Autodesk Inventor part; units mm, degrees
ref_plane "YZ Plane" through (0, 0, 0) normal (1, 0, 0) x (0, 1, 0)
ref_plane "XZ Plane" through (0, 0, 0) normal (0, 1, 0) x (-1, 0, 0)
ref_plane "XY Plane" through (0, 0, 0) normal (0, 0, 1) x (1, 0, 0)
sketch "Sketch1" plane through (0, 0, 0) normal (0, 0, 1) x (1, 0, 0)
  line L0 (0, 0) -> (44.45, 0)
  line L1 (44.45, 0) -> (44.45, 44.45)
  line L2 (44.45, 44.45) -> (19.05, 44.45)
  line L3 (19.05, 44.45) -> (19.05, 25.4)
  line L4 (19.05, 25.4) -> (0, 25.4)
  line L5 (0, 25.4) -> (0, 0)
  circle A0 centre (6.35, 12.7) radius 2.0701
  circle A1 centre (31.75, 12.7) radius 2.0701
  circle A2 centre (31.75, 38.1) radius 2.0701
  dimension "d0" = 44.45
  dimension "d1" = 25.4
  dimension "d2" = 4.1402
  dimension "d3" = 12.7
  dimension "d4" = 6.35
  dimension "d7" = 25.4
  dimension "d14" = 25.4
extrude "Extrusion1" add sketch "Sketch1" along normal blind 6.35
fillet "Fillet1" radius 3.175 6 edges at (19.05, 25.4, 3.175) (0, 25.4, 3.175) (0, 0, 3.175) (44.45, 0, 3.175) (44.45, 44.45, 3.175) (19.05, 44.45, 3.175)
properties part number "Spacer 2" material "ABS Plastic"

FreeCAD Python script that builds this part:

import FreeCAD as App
import Part
import Sketcher
Q = App.Units.Quantity


def edges_at(feature, points):
    """Names of the edges that pass closest to the given points."""
    edges = feature.Shape.Edges
    near = lambda p: min(range(len(edges)), key=lambda i: edges[i].distToShape(Part.Vertex(*p))[0])
    return sorted({f"Edge{near(p) + 1}" for p in points})

doc = App.newDocument("Part")
body = doc.addObject("PartDesign::Body", "Body")

# Sketch on XY plane
sketch1 = doc.addObject("Sketcher::SketchObject", "Sketch")
body.addObject(sketch1)
sketch1.AttachmentSupport = (doc.XY_Plane, [""])
sketch1.MapMode = "FlatFace"
sketch1.addGeometry(Part.LineSegment(App.Vector(0, 25.4, 0), App.Vector(0, 0, 0)), False)
sketch1.addGeometry(Part.LineSegment(App.Vector(0, 0, 0), App.Vector(44.45, 0, 0)), False)
sketch1.addGeometry(Part.LineSegment(App.Vector(44.45, 0, 0), App.Vector(44.45, 44.45, 0)), False)
sketch1.addGeometry(Part.LineSegment(App.Vector(44.45, 44.45, 0), App.Vector(19.05, 44.45, 0)), False)
sketch1.addGeometry(Part.LineSegment(App.Vector(19.05, 44.45, 0), App.Vector(19.05, 25.4, 0)), False)
sketch1.addGeometry(Part.LineSegment(App.Vector(19.05, 25.4, 0), App.Vector(0, 25.4, 0)), False)
sketch1.addGeometry(Part.Circle(App.Vector(6.35, 12.7, 0), App.Vector(0, 0, 1), 2.0701), False)
sketch1.addGeometry(Part.Circle(App.Vector(31.75, 12.7, 0), App.Vector(0, 0, 1), 2.0701), False)
sketch1.addGeometry(Part.Circle(App.Vector(31.75, 38.1, 0), App.Vector(0, 0, 1), 2.0701), False)
sketch1.addConstraint(Sketcher.Constraint("Coincident", 0, 2, 1, 1))
sketch1.addConstraint(Sketcher.Constraint("Coincident", 1, 2, 2, 1))
sketch1.addConstraint(Sketcher.Constraint("Coincident", 2, 2, 3, 1))
sketch1.addConstraint(Sketcher.Constraint("Coincident", 3, 2, 4, 1))
sketch1.addConstraint(Sketcher.Constraint("Coincident", 4, 2, 5, 1))
sketch1.addConstraint(Sketcher.Constraint("Coincident", 5, 2, 0, 1))
sketch1.addConstraint(Sketcher.Constraint("Vertical", 0))
sketch1.addConstraint(Sketcher.Constraint("Horizontal", 1))
sketch1.addConstraint(Sketcher.Constraint("Vertical", 2))
sketch1.addConstraint(Sketcher.Constraint("Horizontal", 3))
sketch1.addConstraint(Sketcher.Constraint("Vertical", 4))
sketch1.addConstraint(Sketcher.Constraint("Horizontal", 5))
sketch1.addConstraint(Sketcher.Constraint("Coincident", 0, 2, -1, 1))
sketch1.addConstraint(Sketcher.Constraint("Equal", 6, 7))
sketch1.addConstraint(Sketcher.Constraint("Equal", 7, 8))
sketch1.addConstraint(Sketcher.Constraint("Horizontal", 6, 3, 7, 3))
sketch1.addConstraint(Sketcher.Constraint("Vertical", 7, 3, 8, 3))
sketch1.addConstraint(Sketcher.Constraint("Equal", 3, 0))
sketch1.addConstraint(Sketcher.Constraint("Equal", 1, 2))
sketch1.addConstraint(Sketcher.Constraint("DistanceX", 3, 2, 3, 1, Q("1 in")))
sketch1.addConstraint(Sketcher.Constraint("Diameter", 6, Q("0.163 in")))
sketch1.addConstraint(Sketcher.Constraint("DistanceX", 6, 3, 7, 3, Q("1 in")))
sketch1.addConstraint(Sketcher.Constraint("DistanceY", 7, 3, 8, 3, Q("1 in")))
sketch1.addConstraint(Sketcher.Constraint("DistanceX", 1, 1, 1, 2, Q("1.75 in")))
sketch1.addConstraint(Sketcher.Constraint("DistanceY", -1, 1, 6, 3, Q("0.5 in")))
sketch1.addConstraint(Sketcher.Constraint("DistanceX", 7, 3, 1, 2, Q("0.5 in")))
pad1 = doc.addObject("PartDesign::Pad", "Pad")
body.addObject(pad1)
pad1.Profile = sketch1
pad1.Length = Q("0.25 in")
doc.recompute()

fillet = doc.addObject("PartDesign::Fillet", "Fillet")
body.addObject(fillet)
fillet.Base = (pad1, edges_at(pad1, [
    (19.05, 25.4, 3.175),
    (0, 25.4, 3.175),
    (0, 0, 3.175),
    (44.45, 0, 3.175),
    (44.45, 44.45, 3.175),
    (19.05, 44.45, 3.175),
]))
fillet.Radius = Q("0.125 in")

doc.recompute()
